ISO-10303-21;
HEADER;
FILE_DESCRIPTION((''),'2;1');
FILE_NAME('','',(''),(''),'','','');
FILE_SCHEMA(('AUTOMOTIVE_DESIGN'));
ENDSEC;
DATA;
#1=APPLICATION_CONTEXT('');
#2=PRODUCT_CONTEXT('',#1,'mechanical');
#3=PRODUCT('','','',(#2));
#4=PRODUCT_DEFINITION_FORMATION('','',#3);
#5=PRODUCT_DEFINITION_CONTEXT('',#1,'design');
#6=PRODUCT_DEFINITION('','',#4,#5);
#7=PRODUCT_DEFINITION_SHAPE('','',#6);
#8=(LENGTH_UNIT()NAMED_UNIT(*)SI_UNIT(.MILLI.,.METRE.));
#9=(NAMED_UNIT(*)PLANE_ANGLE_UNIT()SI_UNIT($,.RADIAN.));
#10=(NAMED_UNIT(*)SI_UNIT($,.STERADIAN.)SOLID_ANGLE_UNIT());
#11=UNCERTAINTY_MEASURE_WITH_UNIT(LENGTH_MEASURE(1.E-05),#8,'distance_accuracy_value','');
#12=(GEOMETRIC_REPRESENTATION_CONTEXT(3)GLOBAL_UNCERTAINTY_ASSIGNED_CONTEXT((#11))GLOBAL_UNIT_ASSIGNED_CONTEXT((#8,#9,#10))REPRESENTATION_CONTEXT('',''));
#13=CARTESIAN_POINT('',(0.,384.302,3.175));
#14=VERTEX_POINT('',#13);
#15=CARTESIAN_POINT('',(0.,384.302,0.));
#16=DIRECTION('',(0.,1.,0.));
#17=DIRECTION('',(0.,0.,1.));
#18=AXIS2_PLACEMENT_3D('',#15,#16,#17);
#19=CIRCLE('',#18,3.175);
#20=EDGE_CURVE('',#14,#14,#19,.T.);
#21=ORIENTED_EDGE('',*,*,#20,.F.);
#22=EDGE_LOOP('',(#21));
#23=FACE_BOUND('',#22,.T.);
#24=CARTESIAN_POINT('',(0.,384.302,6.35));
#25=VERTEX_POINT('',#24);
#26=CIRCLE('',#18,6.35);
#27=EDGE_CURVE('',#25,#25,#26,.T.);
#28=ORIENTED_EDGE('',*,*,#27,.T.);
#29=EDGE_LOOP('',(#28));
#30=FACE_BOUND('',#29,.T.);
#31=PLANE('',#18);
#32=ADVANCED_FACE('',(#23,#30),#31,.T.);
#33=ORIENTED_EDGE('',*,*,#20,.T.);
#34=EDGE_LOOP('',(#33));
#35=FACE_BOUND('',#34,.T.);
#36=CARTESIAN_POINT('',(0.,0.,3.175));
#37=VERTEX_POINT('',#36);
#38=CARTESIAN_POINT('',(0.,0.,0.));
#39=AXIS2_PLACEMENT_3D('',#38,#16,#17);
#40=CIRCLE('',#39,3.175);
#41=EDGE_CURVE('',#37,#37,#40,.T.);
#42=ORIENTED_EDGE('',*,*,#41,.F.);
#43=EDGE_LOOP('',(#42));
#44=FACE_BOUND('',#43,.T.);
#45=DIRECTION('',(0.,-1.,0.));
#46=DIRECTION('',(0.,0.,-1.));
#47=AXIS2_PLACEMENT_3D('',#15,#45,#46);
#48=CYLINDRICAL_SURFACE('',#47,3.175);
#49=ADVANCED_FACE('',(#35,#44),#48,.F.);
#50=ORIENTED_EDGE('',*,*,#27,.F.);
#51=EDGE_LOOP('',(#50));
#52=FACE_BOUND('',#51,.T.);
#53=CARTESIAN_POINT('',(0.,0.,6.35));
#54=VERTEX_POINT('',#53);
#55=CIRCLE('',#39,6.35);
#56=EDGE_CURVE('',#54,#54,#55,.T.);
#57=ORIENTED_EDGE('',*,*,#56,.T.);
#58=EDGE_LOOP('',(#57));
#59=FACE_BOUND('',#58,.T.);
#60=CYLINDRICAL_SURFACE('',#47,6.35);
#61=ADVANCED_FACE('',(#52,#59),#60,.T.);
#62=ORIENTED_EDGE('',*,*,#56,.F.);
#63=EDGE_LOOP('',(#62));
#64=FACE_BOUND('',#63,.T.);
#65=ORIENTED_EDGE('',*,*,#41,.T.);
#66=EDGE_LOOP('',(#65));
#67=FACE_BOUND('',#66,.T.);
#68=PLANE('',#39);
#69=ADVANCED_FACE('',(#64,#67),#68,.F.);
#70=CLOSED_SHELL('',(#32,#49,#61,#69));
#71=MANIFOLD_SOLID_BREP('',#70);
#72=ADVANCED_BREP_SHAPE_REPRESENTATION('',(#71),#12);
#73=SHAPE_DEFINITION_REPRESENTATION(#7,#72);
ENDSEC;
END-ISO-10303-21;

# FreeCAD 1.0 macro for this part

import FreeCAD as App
import Part
import Sketcher
Q = App.Units.Quantity

doc = App.newDocument("Part")
params = doc.addObject("Spreadsheet::Sheet", "Params")
for row, (alias, value) in enumerate([
    ("sketch1_diameter", "0.5 in"),
    ("sketch1_diameter2", "0.25 in"),
    ("pad1_length", "15.13 in"),
], start=1):
    params.set(f"A{row}", alias)
    params.set(f"B{row}", "=" + value)
    params.setAlias(f"B{row}", alias)

body = doc.addObject("PartDesign::Body", "Body")

# Sketch on XZ plane
sketch1 = doc.addObject("Sketcher::SketchObject", "Sketch")
body.addObject(sketch1)
sketch1.AttachmentSupport = (doc.XZ_Plane, [""])
sketch1.MapMode = "FlatFace"
sketch1.addGeometry(Part.Circle(App.Vector(0, 0, 0), App.Vector(0, 0, 1), 6.3), False)
sketch1.addGeometry(Part.Circle(App.Vector(0, 0, 0), App.Vector(0, 0, 1), 3.2), False)
sketch1.addConstraint(Sketcher.Constraint("Coincident", 0, 3, -1, 1))
sketch1.addConstraint(Sketcher.Constraint("Coincident", 1, 3, -1, 1))
sketch1.addConstraint(Sketcher.Constraint("Diameter", 0, Q("0.5 in")))
sketch1.addConstraint(Sketcher.Constraint("Diameter", 1, Q("0.25 in")))
sketch1.setExpression("Constraints[2]", "Params.sketch1_diameter")
sketch1.setExpression("Constraints[3]", "Params.sketch1_diameter2")
pad1 = doc.addObject("PartDesign::Pad", "Pad")
body.addObject(pad1)
pad1.Profile = sketch1
pad1.setExpression("Length", "Params.pad1_length")
pad1.Reversed = True

doc.recompute()
